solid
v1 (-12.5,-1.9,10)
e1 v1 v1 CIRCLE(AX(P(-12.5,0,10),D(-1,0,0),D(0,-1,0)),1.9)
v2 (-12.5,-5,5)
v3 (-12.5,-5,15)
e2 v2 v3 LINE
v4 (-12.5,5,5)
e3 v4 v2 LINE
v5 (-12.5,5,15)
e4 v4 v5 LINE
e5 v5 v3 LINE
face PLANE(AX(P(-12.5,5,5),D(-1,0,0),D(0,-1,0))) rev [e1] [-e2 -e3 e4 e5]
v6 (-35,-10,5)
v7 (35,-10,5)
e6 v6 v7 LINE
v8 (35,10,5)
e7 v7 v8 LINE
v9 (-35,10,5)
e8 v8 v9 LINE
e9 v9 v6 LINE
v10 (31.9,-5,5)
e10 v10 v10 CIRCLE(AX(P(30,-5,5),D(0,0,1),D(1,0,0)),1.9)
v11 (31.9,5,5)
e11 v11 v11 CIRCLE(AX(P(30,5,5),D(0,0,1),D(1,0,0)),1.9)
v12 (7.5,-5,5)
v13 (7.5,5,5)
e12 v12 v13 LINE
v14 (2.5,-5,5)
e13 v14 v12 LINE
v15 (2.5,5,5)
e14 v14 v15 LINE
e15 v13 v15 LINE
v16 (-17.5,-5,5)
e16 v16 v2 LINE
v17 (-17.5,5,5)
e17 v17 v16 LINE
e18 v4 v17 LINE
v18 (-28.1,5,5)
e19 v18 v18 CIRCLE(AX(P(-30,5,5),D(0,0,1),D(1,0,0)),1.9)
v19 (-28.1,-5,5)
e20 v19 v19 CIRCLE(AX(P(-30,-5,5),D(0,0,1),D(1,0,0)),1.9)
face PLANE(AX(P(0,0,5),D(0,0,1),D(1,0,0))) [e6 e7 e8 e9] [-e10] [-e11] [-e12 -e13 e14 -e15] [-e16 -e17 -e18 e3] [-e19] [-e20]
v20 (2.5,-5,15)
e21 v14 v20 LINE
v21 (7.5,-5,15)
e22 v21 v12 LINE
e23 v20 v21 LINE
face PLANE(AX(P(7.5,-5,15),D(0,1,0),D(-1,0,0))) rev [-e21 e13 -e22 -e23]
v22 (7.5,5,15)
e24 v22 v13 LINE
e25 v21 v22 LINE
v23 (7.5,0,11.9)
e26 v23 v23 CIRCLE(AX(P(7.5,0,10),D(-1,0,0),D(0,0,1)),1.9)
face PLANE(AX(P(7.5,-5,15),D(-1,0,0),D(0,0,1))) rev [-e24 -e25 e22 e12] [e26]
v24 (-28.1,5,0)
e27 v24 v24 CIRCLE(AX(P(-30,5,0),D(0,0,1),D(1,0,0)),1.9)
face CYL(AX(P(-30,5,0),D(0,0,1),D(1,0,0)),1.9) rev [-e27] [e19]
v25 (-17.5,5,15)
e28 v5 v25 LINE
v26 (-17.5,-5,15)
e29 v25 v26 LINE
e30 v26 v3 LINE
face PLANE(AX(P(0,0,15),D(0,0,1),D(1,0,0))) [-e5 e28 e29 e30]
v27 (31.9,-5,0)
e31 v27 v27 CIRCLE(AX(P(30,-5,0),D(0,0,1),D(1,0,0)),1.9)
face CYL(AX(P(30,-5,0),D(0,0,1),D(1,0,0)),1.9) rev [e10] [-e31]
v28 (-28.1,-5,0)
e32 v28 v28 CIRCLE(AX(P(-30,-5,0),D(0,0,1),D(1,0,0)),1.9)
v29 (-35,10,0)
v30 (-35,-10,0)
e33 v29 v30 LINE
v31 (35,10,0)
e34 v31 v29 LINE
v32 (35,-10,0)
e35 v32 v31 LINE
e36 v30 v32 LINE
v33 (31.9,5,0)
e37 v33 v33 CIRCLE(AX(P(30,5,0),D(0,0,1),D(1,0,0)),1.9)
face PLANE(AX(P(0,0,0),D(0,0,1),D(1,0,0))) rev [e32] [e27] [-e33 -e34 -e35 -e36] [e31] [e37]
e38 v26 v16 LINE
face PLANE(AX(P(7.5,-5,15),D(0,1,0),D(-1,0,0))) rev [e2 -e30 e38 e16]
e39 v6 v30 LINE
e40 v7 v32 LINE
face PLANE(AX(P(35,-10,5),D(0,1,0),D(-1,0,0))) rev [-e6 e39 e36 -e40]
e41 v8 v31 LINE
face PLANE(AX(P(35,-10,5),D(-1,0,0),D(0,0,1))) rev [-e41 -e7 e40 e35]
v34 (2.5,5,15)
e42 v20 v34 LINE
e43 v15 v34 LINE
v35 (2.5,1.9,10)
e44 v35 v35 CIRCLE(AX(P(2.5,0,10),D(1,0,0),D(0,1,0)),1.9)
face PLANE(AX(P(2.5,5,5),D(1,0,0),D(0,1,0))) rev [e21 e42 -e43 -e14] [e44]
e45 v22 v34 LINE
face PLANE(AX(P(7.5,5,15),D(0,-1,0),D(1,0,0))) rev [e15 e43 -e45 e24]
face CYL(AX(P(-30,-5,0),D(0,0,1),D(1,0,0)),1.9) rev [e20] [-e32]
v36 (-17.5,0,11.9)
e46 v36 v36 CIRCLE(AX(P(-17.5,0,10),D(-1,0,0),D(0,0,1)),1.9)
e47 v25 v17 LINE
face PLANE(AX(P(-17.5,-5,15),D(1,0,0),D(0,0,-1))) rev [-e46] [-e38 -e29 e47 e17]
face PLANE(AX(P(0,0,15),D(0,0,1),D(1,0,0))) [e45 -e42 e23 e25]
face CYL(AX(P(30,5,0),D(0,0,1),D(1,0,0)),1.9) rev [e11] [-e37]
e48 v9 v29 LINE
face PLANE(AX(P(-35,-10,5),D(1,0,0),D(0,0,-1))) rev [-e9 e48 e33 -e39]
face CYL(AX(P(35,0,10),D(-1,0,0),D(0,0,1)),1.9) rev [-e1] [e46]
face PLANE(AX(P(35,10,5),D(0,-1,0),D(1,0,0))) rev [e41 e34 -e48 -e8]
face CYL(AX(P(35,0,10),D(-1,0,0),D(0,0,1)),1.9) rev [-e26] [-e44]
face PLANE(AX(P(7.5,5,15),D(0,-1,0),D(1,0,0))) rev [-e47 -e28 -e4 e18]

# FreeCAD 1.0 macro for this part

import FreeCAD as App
import Part
import Sketcher

V = App.Vector

doc = App.newDocument("Part")
body = doc.addObject("PartDesign::Body", "Body")

# Sketch on XY plane
sketch1 = body.newObject("Sketcher::SketchObject", "Sketch")
sketch1.AttachmentSupport = (doc.getObject("XY_Plane"), [""])
sketch1.MapMode = "FlatFace"
sketch1.addGeometry(Part.LineSegment(V(-35, 10, 0), V(-35, -10, 0)), False)
sketch1.addGeometry(Part.LineSegment(V(-35, -10, 0), V(35, -10, 0)), False)
sketch1.addGeometry(Part.LineSegment(V(35, -10, 0), V(35, 10, 0)), False)
sketch1.addGeometry(Part.LineSegment(V(35, 10, 0), V(-35, 10, 0)), False)
sketch1.addConstraint(Sketcher.Constraint("Coincident", 0, 2, 1, 1))
sketch1.addConstraint(Sketcher.Constraint("Coincident", 1, 2, 2, 1))
sketch1.addConstraint(Sketcher.Constraint("Coincident", 2, 2, 3, 1))
sketch1.addConstraint(Sketcher.Constraint("Coincident", 3, 2, 0, 1))
sketch1.addConstraint(Sketcher.Constraint("Vertical", 0))
sketch1.addConstraint(Sketcher.Constraint("Horizontal", 1))
sketch1.addConstraint(Sketcher.Constraint("Vertical", 2))
sketch1.addConstraint(Sketcher.Constraint("Horizontal", 3))
sketch1.addConstraint(Sketcher.Constraint("Symmetric", 0, 2, 2, 2, -1, 1))
sketch1.addConstraint(Sketcher.Constraint("DistanceX", 1, 1, 1, 2, 70.0))
sketch1.addConstraint(Sketcher.Constraint("DistanceY", 0, 2, 0, 1, 20.0))
pad1 = body.newObject("PartDesign::Pad", "Pad")
pad1.Profile = sketch1
pad1.Length = 5

# Sketch on XY plane
sketch2 = body.newObject("Sketcher::SketchObject", "Sketch001")
sketch2.AttachmentSupport = (doc.getObject("XY_Plane"), [""])
sketch2.MapMode = "FlatFace"
sketch2.AttachmentOffset = App.Placement(V(0, 0, 5), App.Rotation())
sketch2.addGeometry(Part.Circle(V(-30, 5, 0), V(0, 0, 1), 1.9), False)
sketch2.addGeometry(Part.Circle(V(-30, -5, 0), V(0, 0, 1), 1.9), False)
sketch2.addGeometry(Part.Circle(V(30, 5, 0), V(0, 0, 1), 1.9), False)
sketch2.addGeometry(Part.Circle(V(30, -5, 0), V(0, 0, 1), 1.9), False)
sketch2.addConstraint(Sketcher.Constraint("Equal", 0, 1))
sketch2.addConstraint(Sketcher.Constraint("Equal", 1, 2))
sketch2.addConstraint(Sketcher.Constraint("Equal", 2, 3))
sketch2.addConstraint(Sketcher.Constraint("Symmetric", 1, 3, 2, 3, -1, 1))
sketch2.addConstraint(Sketcher.Constraint("Symmetric", 0, 3, 3, 3, -1, 1))
sketch2.addConstraint(Sketcher.Constraint("Symmetric", 0, 3, 2, 3, -2))
sketch2.addConstraint(Sketcher.Constraint("Diameter", 0, 3.8))
sketch2.addConstraint(Sketcher.Constraint("DistanceX", 0, 3, -1, 1, 30.0))
sketch2.addConstraint(Sketcher.Constraint("DistanceY", -1, 1, 0, 3, 5.0))
pocket1 = body.newObject("PartDesign::Pocket", "Pocket")
pocket1.Profile = sketch2
pocket1.Length = 5

# Sketch on XY plane
sketch3 = body.newObject("Sketcher::SketchObject", "Sketch002")
sketch3.AttachmentSupport = (doc.getObject("XY_Plane"), [""])
sketch3.MapMode = "FlatFace"
sketch3.AttachmentOffset = App.Placement(V(0, 0, 5), App.Rotation())
sketch3.addGeometry(Part.LineSegment(V(-17.5, 5, 0), V(-17.5, -5, 0)), False)
sketch3.addGeometry(Part.LineSegment(V(-17.5, -5, 0), V(7.5, -5, 0)), False)
sketch3.addGeometry(Part.LineSegment(V(7.5, -5, 0), V(7.5, 5, 0)), False)
sketch3.addGeometry(Part.LineSegment(V(7.5, 5, 0), V(-17.5, 5, 0)), False)
sketch3.addConstraint(Sketcher.Constraint("Coincident", 0, 2, 1, 1))
sketch3.addConstraint(Sketcher.Constraint("Coincident", 1, 2, 2, 1))
sketch3.addConstraint(Sketcher.Constraint("Coincident", 2, 2, 3, 1))
sketch3.addConstraint(Sketcher.Constraint("Coincident", 3, 2, 0, 1))
sketch3.addConstraint(Sketcher.Constraint("Vertical", 0))
sketch3.addConstraint(Sketcher.Constraint("Horizontal", 1))
sketch3.addConstraint(Sketcher.Constraint("Vertical", 2))
sketch3.addConstraint(Sketcher.Constraint("Horizontal", 3))
sketch3.addConstraint(Sketcher.Constraint("DistanceX", 1, 1, 1, 2, 25.0))
sketch3.addConstraint(Sketcher.Constraint("DistanceY", 0, 2, 0, 1, 10.0))
sketch3.addConstraint(Sketcher.Constraint("DistanceY", 0, 2, -1, 1, 5.0))
sketch3.addConstraint(Sketcher.Constraint("DistanceX", 0, 2, -1, 1, 17.5))
pad2 = body.newObject("PartDesign::Pad", "Pad001")
pad2.Profile = sketch3
pad2.Length = 10

# Sketch on XY plane
sketch4 = body.newObject("Sketcher::SketchObject", "Sketch003")
sketch4.AttachmentSupport = (doc.getObject("XY_Plane"), [""])
sketch4.MapMode = "FlatFace"
sketch4.AttachmentOffset = App.Placement(V(0, 0, 15), App.Rotation())
sketch4.addGeometry(Part.LineSegment(V(-12.5, 5, 0), V(-12.5, -5, 0)), False)
sketch4.addGeometry(Part.LineSegment(V(-12.5, -5, 0), V(2.5, -5, 0)), False)
sketch4.addGeometry(Part.LineSegment(V(2.5, -5, 0), V(2.5, 5, 0)), False)
sketch4.addGeometry(Part.LineSegment(V(2.5, 5, 0), V(-12.5, 5, 0)), False)
sketch4.addConstraint(Sketcher.Constraint("Coincident", 0, 2, 1, 1))
sketch4.addConstraint(Sketcher.Constraint("Coincident", 1, 2, 2, 1))
sketch4.addConstraint(Sketcher.Constraint("Coincident", 2, 2, 3, 1))
sketch4.addConstraint(Sketcher.Constraint("Coincident", 3, 2, 0, 1))
sketch4.addConstraint(Sketcher.Constraint("Vertical", 0))
sketch4.addConstraint(Sketcher.Constraint("Horizontal", 1))
sketch4.addConstraint(Sketcher.Constraint("Vertical", 2))
sketch4.addConstraint(Sketcher.Constraint("Horizontal", 3))
sketch4.addConstraint(Sketcher.Constraint("DistanceX", 1, 1, 1, 2, 15.0))
sketch4.addConstraint(Sketcher.Constraint("DistanceY", 0, 2, 0, 1, 10.0))
sketch4.addConstraint(Sketcher.Constraint("DistanceY", 0, 2, -1, 1, 5.0))
sketch4.addConstraint(Sketcher.Constraint("DistanceX", 0, 2, -1, 1, 12.5))
pocket2 = body.newObject("PartDesign::Pocket", "Pocket001")
pocket2.Profile = sketch4
pocket2.Length = 10

# Sketch on YZ plane
sketch5 = body.newObject("Sketcher::SketchObject", "Sketch004")
sketch5.AttachmentSupport = (doc.getObject("YZ_Plane"), [""])
sketch5.MapMode = "FlatFace"
sketch5.AttachmentOffset = App.Placement(V(0, 0, -17.5), App.Rotation())
sketch5.addGeometry(Part.Circle(V(0, 10, 0), V(0, 0, 1), 1.9), False)
sketch5.addConstraint(Sketcher.Constraint("PointOnObject", 0, 3, -2))
sketch5.addConstraint(Sketcher.Constraint("Diameter", 0, 3.8))
sketch5.addConstraint(Sketcher.Constraint("DistanceY", -1, 1, 0, 3, 10.0))
pocket3 = body.newObject("PartDesign::Pocket", "Pocket002")
pocket3.Profile = sketch5
pocket3.Type = "ThroughAll"
pocket3.Reversed = True

doc.recompute()
